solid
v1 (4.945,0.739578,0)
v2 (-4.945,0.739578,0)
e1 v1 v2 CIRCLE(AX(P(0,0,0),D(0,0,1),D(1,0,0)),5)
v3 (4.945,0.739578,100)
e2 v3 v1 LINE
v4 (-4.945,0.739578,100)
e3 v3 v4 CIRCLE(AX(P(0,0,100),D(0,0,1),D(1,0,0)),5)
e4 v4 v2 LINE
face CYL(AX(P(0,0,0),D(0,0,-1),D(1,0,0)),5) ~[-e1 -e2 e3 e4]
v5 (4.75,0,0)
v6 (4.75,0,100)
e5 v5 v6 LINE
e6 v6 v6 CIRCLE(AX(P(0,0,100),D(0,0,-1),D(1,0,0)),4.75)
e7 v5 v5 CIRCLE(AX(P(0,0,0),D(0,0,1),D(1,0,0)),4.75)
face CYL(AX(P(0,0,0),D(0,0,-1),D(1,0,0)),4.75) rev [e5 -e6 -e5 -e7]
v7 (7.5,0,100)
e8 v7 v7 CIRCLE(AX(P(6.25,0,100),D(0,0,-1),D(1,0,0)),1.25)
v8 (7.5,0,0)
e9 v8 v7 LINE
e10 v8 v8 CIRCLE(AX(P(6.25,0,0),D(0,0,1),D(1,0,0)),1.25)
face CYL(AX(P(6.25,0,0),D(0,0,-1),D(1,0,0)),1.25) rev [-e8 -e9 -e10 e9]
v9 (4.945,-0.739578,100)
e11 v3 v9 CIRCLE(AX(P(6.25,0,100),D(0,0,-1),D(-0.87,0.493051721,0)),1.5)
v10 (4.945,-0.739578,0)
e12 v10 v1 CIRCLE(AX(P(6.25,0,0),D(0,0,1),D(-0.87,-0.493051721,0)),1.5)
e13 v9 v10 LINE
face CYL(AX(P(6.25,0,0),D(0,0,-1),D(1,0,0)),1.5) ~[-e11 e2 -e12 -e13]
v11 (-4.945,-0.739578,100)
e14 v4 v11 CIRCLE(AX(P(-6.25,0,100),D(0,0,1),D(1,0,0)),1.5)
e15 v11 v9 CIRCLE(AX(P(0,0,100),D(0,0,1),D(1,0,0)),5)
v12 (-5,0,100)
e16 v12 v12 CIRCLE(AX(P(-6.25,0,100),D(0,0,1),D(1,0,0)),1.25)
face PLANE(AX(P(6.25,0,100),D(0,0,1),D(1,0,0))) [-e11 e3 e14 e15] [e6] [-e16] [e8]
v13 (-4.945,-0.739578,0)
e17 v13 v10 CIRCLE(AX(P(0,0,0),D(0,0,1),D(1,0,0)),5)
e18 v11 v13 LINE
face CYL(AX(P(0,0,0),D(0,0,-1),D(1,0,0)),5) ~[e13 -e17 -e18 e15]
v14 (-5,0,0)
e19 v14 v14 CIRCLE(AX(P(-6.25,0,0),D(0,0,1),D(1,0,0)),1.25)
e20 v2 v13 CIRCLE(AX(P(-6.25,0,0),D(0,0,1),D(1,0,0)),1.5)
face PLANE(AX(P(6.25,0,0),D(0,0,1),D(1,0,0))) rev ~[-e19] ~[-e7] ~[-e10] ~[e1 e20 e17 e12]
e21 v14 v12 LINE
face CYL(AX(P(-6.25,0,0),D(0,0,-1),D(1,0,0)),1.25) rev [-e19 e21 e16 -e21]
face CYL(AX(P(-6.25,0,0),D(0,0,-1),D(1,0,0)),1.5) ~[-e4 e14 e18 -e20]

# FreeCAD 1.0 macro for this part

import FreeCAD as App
import Part
import Sketcher

doc = App.newDocument("Part")
body = doc.addObject("PartDesign::Body", "Body")

sketch1 = doc.addObject("Sketcher::SketchObject", "Sketch")
body.addObject(sketch1)
sketch1.AttachmentSupport = (doc.XY_Plane, [""])
sketch1.MapMode = "FlatFace"
sketch1.addGeometry(Part.Circle(App.Vector(0, 0, 0), App.Vector(0, 0, 1), 5), False)
sketch1.addGeometry(Part.Circle(App.Vector(0, 0, 0), App.Vector(0, 0, 1), 4.8), False)
sketch1.addConstraint(Sketcher.Constraint("Coincident", 0, 3, -1, 1))
sketch1.addConstraint(Sketcher.Constraint("Coincident", 1, 3, -1, 1))
sketch1.addConstraint(Sketcher.Constraint("Diameter", 0, 10.0))
sketch1.addConstraint(Sketcher.Constraint("Diameter", 1, 9.5))
pad1 = doc.addObject("PartDesign::Pad", "Pad")
body.addObject(pad1)
pad1.Profile = sketch1
pad1.Length = 100

sketch2 = doc.addObject("Sketcher::SketchObject", "Sketch001")
body.addObject(sketch2)
sketch2.AttachmentSupport = (doc.XY_Plane, [""])
sketch2.MapMode = "FlatFace"
sketch2.addGeometry(Part.Circle(App.Vector(6.2, 0, 0), App.Vector(0, 0, 1), 1.5), False)
sketch2.addGeometry(Part.Circle(App.Vector(6.2, 0, 0), App.Vector(0, 0, 1), 1.2), False)
sketch2.addGeometry(Part.Circle(App.Vector(-6.2, 0, 0), App.Vector(0, 0, 1), 1.5), False)
sketch2.addGeometry(Part.Circle(App.Vector(-6.2, 0, 0), App.Vector(0, 0, 1), 1.2), False)
sketch2.addConstraint(Sketcher.Constraint("Coincident", 1, 3, 0, 3))
sketch2.addConstraint(Sketcher.Constraint("Coincident", 3, 3, 2, 3))
sketch2.addConstraint(Sketcher.Constraint("Equal", 0, 2))
sketch2.addConstraint(Sketcher.Constraint("Equal", 1, 3))
sketch2.addConstraint(Sketcher.Constraint("Symmetric", 0, 3, 2, 3, -1, 1))
sketch2.addConstraint(Sketcher.Constraint("PointOnObject", 0, 3, -1))
sketch2.addConstraint(Sketcher.Constraint("Diameter", 0, 3.0))
sketch2.addConstraint(Sketcher.Constraint("Diameter", 1, 2.5))
sketch2.addConstraint(Sketcher.Constraint("DistanceX", 2, 3, 0, 3, 12.5))
pad2 = doc.addObject("PartDesign::Pad", "Pad001")
body.addObject(pad2)
pad2.Profile = sketch2
pad2.Length = 100

doc.recompute()
